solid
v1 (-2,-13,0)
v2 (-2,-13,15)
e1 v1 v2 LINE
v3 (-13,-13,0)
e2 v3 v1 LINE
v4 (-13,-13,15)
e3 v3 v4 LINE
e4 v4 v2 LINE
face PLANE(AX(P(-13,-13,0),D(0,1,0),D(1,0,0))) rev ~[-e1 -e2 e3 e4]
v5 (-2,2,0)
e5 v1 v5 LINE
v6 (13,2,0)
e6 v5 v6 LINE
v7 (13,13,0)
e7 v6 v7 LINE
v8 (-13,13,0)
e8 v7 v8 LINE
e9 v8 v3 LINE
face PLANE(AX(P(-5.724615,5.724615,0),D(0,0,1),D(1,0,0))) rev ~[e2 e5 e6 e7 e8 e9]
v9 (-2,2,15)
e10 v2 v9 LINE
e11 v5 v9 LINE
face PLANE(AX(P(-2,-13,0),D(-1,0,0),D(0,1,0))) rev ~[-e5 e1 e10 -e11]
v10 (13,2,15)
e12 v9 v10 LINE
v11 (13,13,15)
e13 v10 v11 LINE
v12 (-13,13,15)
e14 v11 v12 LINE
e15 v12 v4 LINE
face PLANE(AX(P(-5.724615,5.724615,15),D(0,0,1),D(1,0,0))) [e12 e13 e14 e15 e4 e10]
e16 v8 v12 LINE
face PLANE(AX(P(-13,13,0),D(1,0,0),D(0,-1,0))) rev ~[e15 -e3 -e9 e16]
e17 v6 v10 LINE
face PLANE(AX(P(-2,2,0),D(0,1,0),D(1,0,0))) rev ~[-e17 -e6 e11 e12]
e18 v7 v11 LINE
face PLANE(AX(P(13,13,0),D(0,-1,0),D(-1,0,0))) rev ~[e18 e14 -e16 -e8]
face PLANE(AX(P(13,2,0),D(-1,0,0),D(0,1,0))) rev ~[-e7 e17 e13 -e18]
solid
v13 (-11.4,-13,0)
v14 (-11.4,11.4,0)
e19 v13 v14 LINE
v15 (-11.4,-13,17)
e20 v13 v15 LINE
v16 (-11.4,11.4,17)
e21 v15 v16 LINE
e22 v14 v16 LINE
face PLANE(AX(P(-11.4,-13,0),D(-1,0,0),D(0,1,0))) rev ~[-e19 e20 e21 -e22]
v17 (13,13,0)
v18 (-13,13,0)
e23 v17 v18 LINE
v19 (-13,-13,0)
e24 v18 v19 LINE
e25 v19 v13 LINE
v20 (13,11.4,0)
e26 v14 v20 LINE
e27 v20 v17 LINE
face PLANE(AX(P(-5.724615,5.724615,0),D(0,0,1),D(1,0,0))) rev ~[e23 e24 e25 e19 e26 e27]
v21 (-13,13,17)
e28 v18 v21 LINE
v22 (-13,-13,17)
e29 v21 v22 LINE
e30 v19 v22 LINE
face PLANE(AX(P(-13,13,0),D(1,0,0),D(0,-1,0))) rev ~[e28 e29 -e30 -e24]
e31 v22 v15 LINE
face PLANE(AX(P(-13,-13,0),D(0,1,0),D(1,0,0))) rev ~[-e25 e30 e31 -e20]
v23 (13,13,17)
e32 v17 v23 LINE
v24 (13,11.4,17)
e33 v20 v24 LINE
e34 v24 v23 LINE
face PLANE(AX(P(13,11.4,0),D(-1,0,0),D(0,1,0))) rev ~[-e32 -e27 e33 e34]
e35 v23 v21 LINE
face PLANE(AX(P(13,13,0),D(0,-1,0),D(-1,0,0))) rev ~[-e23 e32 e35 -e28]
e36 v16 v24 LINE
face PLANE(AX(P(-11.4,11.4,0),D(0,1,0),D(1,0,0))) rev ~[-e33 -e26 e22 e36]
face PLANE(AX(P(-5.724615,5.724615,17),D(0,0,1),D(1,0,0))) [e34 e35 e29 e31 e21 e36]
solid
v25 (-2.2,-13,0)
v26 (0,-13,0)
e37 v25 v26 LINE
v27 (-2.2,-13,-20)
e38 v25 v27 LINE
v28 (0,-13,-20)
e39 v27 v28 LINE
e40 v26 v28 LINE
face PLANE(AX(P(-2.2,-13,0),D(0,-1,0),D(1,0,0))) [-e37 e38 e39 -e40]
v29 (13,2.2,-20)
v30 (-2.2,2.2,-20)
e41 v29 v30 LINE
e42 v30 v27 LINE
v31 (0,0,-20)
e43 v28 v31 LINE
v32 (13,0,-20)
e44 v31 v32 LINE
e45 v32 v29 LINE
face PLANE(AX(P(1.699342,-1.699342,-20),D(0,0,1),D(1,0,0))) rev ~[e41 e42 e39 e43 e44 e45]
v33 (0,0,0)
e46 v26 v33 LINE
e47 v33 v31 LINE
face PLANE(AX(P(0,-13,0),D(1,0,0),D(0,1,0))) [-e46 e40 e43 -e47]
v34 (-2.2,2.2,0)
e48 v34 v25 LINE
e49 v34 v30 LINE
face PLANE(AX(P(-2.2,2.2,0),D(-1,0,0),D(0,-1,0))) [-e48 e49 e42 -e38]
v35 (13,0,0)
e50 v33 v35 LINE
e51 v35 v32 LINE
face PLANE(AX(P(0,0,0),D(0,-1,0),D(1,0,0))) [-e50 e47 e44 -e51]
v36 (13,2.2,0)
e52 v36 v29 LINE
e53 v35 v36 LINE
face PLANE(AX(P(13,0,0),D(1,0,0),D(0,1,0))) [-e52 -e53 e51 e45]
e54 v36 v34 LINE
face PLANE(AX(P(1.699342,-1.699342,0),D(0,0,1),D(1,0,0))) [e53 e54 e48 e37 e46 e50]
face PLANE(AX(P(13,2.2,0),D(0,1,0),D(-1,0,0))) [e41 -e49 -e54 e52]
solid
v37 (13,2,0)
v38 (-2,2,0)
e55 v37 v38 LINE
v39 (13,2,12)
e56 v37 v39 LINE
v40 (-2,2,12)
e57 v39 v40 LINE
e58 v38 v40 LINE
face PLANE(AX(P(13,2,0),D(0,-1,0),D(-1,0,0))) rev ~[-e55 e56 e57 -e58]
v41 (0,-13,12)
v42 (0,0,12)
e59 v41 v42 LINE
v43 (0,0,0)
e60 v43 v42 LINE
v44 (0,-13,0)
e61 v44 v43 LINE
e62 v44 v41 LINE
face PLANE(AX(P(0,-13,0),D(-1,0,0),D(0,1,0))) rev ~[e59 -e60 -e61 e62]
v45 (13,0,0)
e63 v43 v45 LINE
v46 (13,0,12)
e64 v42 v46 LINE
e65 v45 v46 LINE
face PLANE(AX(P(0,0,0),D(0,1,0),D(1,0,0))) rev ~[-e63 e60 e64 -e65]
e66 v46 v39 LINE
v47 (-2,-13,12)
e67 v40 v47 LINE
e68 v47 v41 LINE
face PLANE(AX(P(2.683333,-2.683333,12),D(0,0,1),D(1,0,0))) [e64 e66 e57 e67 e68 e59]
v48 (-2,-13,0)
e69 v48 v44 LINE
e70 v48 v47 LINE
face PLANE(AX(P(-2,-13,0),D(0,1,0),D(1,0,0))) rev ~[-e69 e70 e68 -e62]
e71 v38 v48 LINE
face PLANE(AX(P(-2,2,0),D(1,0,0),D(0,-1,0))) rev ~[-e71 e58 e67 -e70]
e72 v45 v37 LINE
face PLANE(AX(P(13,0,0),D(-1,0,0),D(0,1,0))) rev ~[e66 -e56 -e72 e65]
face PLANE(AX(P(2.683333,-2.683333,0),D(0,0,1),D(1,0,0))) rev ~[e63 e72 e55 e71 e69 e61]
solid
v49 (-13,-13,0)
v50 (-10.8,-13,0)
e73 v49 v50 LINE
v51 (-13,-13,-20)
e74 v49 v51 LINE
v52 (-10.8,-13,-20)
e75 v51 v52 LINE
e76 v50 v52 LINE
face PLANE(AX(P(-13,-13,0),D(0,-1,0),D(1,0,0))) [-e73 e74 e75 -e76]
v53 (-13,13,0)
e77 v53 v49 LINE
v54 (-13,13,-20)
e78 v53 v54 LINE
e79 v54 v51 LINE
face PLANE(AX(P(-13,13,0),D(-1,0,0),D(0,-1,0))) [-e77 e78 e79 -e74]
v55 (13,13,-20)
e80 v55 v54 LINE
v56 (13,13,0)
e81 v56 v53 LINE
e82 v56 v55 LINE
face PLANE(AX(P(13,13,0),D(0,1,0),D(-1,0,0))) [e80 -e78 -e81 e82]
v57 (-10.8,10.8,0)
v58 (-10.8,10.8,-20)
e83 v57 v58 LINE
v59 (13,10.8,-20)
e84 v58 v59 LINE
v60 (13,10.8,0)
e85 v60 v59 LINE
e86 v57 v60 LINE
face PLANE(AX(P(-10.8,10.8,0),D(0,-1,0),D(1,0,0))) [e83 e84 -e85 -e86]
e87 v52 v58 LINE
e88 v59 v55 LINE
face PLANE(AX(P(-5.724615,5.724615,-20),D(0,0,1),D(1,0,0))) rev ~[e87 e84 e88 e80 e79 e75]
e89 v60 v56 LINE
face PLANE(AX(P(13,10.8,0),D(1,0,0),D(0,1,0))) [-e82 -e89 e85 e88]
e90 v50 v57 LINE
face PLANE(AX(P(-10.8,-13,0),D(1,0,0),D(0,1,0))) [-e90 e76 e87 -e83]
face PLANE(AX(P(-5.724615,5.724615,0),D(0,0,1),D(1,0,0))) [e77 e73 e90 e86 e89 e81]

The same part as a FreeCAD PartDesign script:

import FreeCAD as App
import Part
import Sketcher
Q = App.Units.Quantity

doc = App.newDocument("Part")
body = doc.addObject("PartDesign::Body", "Body")
body.AllowCompound = True

# Sketch on XY plane
sketch1 = body.newObject("Sketcher::SketchObject", "Sketch")
sketch1.AttachmentSupport = (doc.getObject("XY_Plane"), [""])
sketch1.MapMode = "FlatFace"
sketch1.addGeometry([
    Part.LineSegment(App.Vector(-13, -13, 0), App.Vector(-10.8, -13, 0)),  # 0
    Part.LineSegment(App.Vector(-10.8, -13, 0), App.Vector(-10.8, 10.8, 0)),  # 1
    Part.LineSegment(App.Vector(-10.8, 10.8, 0), App.Vector(13, 10.8, 0)),  # 2
    Part.LineSegment(App.Vector(13, 10.8, 0), App.Vector(13, 13, 0)),  # 3
    Part.LineSegment(App.Vector(13, 13, 0), App.Vector(-13, 13, 0)),  # 4
    Part.LineSegment(App.Vector(-13, 13, 0), App.Vector(-13, -13, 0)),  # 5
    Part.LineSegment(App.Vector(-2.2, -13, 0), App.Vector(0, -13, 0)),  # 6
    Part.LineSegment(App.Vector(0, -13, 0), App.Vector(0, 0, 0)),  # 7
    Part.LineSegment(App.Vector(0, 0, 0), App.Vector(13, 0, 0)),  # 8
    Part.LineSegment(App.Vector(13, 0, 0), App.Vector(13, 2.2, 0)),  # 9
    Part.LineSegment(App.Vector(13, 2.2, 0), App.Vector(-2.2, 2.2, 0)),  # 10
    Part.LineSegment(App.Vector(-2.2, 2.2, 0), App.Vector(-2.2, -13, 0)),  # 11
], False)
sketch1.addConstraint([
    Sketcher.Constraint("Coincident", 0, 2, 1, 1),
    Sketcher.Constraint("Coincident", 1, 2, 2, 1),
    Sketcher.Constraint("Coincident", 2, 2, 3, 1),
    Sketcher.Constraint("Coincident", 3, 2, 4, 1),
    Sketcher.Constraint("Coincident", 4, 2, 5, 1),
    Sketcher.Constraint("Coincident", 5, 2, 0, 1),
    Sketcher.Constraint("Coincident", 6, 2, 7, 1),
    Sketcher.Constraint("Coincident", 7, 2, 8, 1),
    Sketcher.Constraint("Coincident", 8, 2, 9, 1),
    Sketcher.Constraint("Coincident", 9, 2, 10, 1),
    Sketcher.Constraint("Coincident", 10, 2, 11, 1),
    Sketcher.Constraint("Coincident", 11, 2, 6, 1),
    Sketcher.Constraint("Horizontal", 0),
    Sketcher.Constraint("Vertical", 1),
    Sketcher.Constraint("Horizontal", 2),
    Sketcher.Constraint("Vertical", 3),
    Sketcher.Constraint("Horizontal", 4),
    Sketcher.Constraint("Vertical", 5),
    Sketcher.Constraint("Horizontal", 6),
    Sketcher.Constraint("Vertical", 7),
    Sketcher.Constraint("Horizontal", 8),
    Sketcher.Constraint("Vertical", 9),
    Sketcher.Constraint("Horizontal", 10),
    Sketcher.Constraint("Vertical", 11),
    Sketcher.Constraint("Coincident", 7, 2, -1, 1),
    Sketcher.Constraint("Symmetric", 3, 2, 5, 2, -1, 1),
    Sketcher.Constraint("Horizontal", 5, 2, 6, 2),
    Sketcher.Constraint("Vertical", 3, 2, 8, 2),
    Sketcher.Constraint("Equal", 0, 6),
    Sketcher.Constraint("Equal", 2, 1),
    Sketcher.Constraint("Equal", 6, 3),
    Sketcher.Constraint("Equal", 3, 9),
    Sketcher.Constraint("DistanceX", 4, 2, 4, 1, Q("26 mm")),
    Sketcher.Constraint("DistanceX", 0, 1, 0, 2, Q("2.2 mm")),
])
pad1 = body.newObject("PartDesign::Pad", "Pad")
pad1.Profile = sketch1
pad1.Length = 20
pad1.Reversed = True
body2 = doc.addObject("PartDesign::Body", "Body001")

# Sketch on XY plane
sketch2 = body2.newObject("Sketcher::SketchObject", "Sketch001")
sketch2.AttachmentSupport = (doc.getObject("XY_Plane001"), [""])
sketch2.MapMode = "FlatFace"
sketch2.addGeometry([
    Part.LineSegment(App.Vector(-2, -13, 0), App.Vector(0, -13, 0)),  # 0
    Part.LineSegment(App.Vector(0, -13, 0), App.Vector(0, 0, 0)),  # 1
    Part.LineSegment(App.Vector(0, 0, 0), App.Vector(13, 0, 0)),  # 2
    Part.LineSegment(App.Vector(13, 0, 0), App.Vector(13, 2, 0)),  # 3
    Part.LineSegment(App.Vector(13, 2, 0), App.Vector(-2, 2, 0)),  # 4
    Part.LineSegment(App.Vector(-2, 2, 0), App.Vector(-2, -13, 0)),  # 5
], False)
sketch2.addConstraint([
    Sketcher.Constraint("Coincident", 0, 2, 1, 1),
    Sketcher.Constraint("Coincident", 1, 2, 2, 1),
    Sketcher.Constraint("Coincident", 2, 2, 3, 1),
    Sketcher.Constraint("Coincident", 3, 2, 4, 1),
    Sketcher.Constraint("Coincident", 4, 2, 5, 1),
    Sketcher.Constraint("Coincident", 5, 2, 0, 1),
    Sketcher.Constraint("Horizontal", 0),
    Sketcher.Constraint("Vertical", 1),
    Sketcher.Constraint("Horizontal", 2),
    Sketcher.Constraint("Vertical", 3),
    Sketcher.Constraint("Horizontal", 4),
    Sketcher.Constraint("Vertical", 5),
    Sketcher.Constraint("Coincident", 1, 2, -1, 1),
    Sketcher.Constraint("Equal", 2, 1),
    Sketcher.Constraint("Equal", 0, 3),
    Sketcher.Constraint("DistanceX", 0, 1, 0, 2, Q("2 mm")),
    Sketcher.Constraint("DistanceX", 2, 1, 2, 2, Q("13 mm")),
])
pad2 = body2.newObject("PartDesign::Pad", "Pad001")
pad2.Profile = sketch2
pad2.Length = 12
body3 = doc.addObject("PartDesign::Body", "Body002")

# Sketch on XY plane
sketch3 = body3.newObject("Sketcher::SketchObject", "Sketch002")
sketch3.AttachmentSupport = (doc.getObject("XY_Plane002"), [""])
sketch3.MapMode = "FlatFace"
sketch3.addGeometry([
    Part.LineSegment(App.Vector(-13, -13, 0), App.Vector(-11.4, -13, 0)),  # 0
    Part.LineSegment(App.Vector(-11.4, -13, 0), App.Vector(-11.4, 11.4, 0)),  # 1
    Part.LineSegment(App.Vector(-11.4, 11.4, 0), App.Vector(13, 11.4, 0)),  # 2
    Part.LineSegment(App.Vector(13, 11.4, 0), App.Vector(13, 13, 0)),  # 3
    Part.LineSegment(App.Vector(13, 13, 0), App.Vector(-13, 13, 0)),  # 4
    Part.LineSegment(App.Vector(-13, 13, 0), App.Vector(-13, -13, 0)),  # 5
], False)
sketch3.addConstraint([
    Sketcher.Constraint("Coincident", 0, 2, 1, 1),
    Sketcher.Constraint("Coincident", 1, 2, 2, 1),
    Sketcher.Constraint("Coincident", 2, 2, 3, 1),
    Sketcher.Constraint("Coincident", 3, 2, 4, 1),
    Sketcher.Constraint("Coincident", 4, 2, 5, 1),
    Sketcher.Constraint("Coincident", 5, 2, 0, 1),
    Sketcher.Constraint("Horizontal", 0),
    Sketcher.Constraint("Vertical", 1),
    Sketcher.Constraint("Horizontal", 2),
    Sketcher.Constraint("Vertical", 3),
    Sketcher.Constraint("Horizontal", 4),
    Sketcher.Constraint("Vertical", 5),
    Sketcher.Constraint("Symmetric", 3, 2, 5, 2, -1, 1),
    Sketcher.Constraint("Equal", 2, 1),
    Sketcher.Constraint("Equal", 0, 3),
    Sketcher.Constraint("DistanceX", 4, 2, 4, 1, Q("26 mm")),
    Sketcher.Constraint("DistanceX", 0, 1, 0, 2, Q("1.6 mm")),
])
pad3 = body3.newObject("PartDesign::Pad", "Pad002")
pad3.Profile = sketch3
pad3.Length = 17
body4 = doc.addObject("PartDesign::Body", "Body003")

# Sketch on XY plane
sketch4 = body4.newObject("Sketcher::SketchObject", "Sketch003")
sketch4.AttachmentSupport = (doc.getObject("XY_Plane003"), [""])
sketch4.MapMode = "FlatFace"
sketch4.addGeometry([
    Part.LineSegment(App.Vector(-13, -13, 0), App.Vector(-2, -13, 0)),  # 0
    Part.LineSegment(App.Vector(-2, -13, 0), App.Vector(-2, 2, 0)),  # 1
    Part.LineSegment(App.Vector(-2, 2, 0), App.Vector(13, 2, 0)),  # 2
    Part.LineSegment(App.Vector(13, 2, 0), App.Vector(13, 13, 0)),  # 3
    Part.LineSegment(App.Vector(13, 13, 0), App.Vector(-13, 13, 0)),  # 4
    Part.LineSegment(App.Vector(-13, 13, 0), App.Vector(-13, -13, 0)),  # 5
], False)
sketch4.addConstraint([
    Sketcher.Constraint("Coincident", 0, 2, 1, 1),
    Sketcher.Constraint("Coincident", 1, 2, 2, 1),
    Sketcher.Constraint("Coincident", 2, 2, 3, 1),
    Sketcher.Constraint("Coincident", 3, 2, 4, 1),
    Sketcher.Constraint("Coincident", 4, 2, 5, 1),
    Sketcher.Constraint("Coincident", 5, 2, 0, 1),
    Sketcher.Constraint("Horizontal", 0),
    Sketcher.Constraint("Vertical", 1),
    Sketcher.Constraint("Horizontal", 2),
    Sketcher.Constraint("Vertical", 3),
    Sketcher.Constraint("Horizontal", 4),
    Sketcher.Constraint("Vertical", 5),
    Sketcher.Constraint("Symmetric", 3, 2, 5, 2, -1, 1),
    Sketcher.Constraint("Equal", 2, 1),
    Sketcher.Constraint("Equal", 0, 3),
    Sketcher.Constraint("DistanceX", 0, 1, 0, 2, Q("11 mm")),
    Sketcher.Constraint("DistanceX", 2, 1, 2, 2, Q("15 mm")),
])
pad4 = body4.newObject("PartDesign::Pad", "Pad003")
pad4.Profile = sketch4
pad4.Length = 15

doc.recompute()
